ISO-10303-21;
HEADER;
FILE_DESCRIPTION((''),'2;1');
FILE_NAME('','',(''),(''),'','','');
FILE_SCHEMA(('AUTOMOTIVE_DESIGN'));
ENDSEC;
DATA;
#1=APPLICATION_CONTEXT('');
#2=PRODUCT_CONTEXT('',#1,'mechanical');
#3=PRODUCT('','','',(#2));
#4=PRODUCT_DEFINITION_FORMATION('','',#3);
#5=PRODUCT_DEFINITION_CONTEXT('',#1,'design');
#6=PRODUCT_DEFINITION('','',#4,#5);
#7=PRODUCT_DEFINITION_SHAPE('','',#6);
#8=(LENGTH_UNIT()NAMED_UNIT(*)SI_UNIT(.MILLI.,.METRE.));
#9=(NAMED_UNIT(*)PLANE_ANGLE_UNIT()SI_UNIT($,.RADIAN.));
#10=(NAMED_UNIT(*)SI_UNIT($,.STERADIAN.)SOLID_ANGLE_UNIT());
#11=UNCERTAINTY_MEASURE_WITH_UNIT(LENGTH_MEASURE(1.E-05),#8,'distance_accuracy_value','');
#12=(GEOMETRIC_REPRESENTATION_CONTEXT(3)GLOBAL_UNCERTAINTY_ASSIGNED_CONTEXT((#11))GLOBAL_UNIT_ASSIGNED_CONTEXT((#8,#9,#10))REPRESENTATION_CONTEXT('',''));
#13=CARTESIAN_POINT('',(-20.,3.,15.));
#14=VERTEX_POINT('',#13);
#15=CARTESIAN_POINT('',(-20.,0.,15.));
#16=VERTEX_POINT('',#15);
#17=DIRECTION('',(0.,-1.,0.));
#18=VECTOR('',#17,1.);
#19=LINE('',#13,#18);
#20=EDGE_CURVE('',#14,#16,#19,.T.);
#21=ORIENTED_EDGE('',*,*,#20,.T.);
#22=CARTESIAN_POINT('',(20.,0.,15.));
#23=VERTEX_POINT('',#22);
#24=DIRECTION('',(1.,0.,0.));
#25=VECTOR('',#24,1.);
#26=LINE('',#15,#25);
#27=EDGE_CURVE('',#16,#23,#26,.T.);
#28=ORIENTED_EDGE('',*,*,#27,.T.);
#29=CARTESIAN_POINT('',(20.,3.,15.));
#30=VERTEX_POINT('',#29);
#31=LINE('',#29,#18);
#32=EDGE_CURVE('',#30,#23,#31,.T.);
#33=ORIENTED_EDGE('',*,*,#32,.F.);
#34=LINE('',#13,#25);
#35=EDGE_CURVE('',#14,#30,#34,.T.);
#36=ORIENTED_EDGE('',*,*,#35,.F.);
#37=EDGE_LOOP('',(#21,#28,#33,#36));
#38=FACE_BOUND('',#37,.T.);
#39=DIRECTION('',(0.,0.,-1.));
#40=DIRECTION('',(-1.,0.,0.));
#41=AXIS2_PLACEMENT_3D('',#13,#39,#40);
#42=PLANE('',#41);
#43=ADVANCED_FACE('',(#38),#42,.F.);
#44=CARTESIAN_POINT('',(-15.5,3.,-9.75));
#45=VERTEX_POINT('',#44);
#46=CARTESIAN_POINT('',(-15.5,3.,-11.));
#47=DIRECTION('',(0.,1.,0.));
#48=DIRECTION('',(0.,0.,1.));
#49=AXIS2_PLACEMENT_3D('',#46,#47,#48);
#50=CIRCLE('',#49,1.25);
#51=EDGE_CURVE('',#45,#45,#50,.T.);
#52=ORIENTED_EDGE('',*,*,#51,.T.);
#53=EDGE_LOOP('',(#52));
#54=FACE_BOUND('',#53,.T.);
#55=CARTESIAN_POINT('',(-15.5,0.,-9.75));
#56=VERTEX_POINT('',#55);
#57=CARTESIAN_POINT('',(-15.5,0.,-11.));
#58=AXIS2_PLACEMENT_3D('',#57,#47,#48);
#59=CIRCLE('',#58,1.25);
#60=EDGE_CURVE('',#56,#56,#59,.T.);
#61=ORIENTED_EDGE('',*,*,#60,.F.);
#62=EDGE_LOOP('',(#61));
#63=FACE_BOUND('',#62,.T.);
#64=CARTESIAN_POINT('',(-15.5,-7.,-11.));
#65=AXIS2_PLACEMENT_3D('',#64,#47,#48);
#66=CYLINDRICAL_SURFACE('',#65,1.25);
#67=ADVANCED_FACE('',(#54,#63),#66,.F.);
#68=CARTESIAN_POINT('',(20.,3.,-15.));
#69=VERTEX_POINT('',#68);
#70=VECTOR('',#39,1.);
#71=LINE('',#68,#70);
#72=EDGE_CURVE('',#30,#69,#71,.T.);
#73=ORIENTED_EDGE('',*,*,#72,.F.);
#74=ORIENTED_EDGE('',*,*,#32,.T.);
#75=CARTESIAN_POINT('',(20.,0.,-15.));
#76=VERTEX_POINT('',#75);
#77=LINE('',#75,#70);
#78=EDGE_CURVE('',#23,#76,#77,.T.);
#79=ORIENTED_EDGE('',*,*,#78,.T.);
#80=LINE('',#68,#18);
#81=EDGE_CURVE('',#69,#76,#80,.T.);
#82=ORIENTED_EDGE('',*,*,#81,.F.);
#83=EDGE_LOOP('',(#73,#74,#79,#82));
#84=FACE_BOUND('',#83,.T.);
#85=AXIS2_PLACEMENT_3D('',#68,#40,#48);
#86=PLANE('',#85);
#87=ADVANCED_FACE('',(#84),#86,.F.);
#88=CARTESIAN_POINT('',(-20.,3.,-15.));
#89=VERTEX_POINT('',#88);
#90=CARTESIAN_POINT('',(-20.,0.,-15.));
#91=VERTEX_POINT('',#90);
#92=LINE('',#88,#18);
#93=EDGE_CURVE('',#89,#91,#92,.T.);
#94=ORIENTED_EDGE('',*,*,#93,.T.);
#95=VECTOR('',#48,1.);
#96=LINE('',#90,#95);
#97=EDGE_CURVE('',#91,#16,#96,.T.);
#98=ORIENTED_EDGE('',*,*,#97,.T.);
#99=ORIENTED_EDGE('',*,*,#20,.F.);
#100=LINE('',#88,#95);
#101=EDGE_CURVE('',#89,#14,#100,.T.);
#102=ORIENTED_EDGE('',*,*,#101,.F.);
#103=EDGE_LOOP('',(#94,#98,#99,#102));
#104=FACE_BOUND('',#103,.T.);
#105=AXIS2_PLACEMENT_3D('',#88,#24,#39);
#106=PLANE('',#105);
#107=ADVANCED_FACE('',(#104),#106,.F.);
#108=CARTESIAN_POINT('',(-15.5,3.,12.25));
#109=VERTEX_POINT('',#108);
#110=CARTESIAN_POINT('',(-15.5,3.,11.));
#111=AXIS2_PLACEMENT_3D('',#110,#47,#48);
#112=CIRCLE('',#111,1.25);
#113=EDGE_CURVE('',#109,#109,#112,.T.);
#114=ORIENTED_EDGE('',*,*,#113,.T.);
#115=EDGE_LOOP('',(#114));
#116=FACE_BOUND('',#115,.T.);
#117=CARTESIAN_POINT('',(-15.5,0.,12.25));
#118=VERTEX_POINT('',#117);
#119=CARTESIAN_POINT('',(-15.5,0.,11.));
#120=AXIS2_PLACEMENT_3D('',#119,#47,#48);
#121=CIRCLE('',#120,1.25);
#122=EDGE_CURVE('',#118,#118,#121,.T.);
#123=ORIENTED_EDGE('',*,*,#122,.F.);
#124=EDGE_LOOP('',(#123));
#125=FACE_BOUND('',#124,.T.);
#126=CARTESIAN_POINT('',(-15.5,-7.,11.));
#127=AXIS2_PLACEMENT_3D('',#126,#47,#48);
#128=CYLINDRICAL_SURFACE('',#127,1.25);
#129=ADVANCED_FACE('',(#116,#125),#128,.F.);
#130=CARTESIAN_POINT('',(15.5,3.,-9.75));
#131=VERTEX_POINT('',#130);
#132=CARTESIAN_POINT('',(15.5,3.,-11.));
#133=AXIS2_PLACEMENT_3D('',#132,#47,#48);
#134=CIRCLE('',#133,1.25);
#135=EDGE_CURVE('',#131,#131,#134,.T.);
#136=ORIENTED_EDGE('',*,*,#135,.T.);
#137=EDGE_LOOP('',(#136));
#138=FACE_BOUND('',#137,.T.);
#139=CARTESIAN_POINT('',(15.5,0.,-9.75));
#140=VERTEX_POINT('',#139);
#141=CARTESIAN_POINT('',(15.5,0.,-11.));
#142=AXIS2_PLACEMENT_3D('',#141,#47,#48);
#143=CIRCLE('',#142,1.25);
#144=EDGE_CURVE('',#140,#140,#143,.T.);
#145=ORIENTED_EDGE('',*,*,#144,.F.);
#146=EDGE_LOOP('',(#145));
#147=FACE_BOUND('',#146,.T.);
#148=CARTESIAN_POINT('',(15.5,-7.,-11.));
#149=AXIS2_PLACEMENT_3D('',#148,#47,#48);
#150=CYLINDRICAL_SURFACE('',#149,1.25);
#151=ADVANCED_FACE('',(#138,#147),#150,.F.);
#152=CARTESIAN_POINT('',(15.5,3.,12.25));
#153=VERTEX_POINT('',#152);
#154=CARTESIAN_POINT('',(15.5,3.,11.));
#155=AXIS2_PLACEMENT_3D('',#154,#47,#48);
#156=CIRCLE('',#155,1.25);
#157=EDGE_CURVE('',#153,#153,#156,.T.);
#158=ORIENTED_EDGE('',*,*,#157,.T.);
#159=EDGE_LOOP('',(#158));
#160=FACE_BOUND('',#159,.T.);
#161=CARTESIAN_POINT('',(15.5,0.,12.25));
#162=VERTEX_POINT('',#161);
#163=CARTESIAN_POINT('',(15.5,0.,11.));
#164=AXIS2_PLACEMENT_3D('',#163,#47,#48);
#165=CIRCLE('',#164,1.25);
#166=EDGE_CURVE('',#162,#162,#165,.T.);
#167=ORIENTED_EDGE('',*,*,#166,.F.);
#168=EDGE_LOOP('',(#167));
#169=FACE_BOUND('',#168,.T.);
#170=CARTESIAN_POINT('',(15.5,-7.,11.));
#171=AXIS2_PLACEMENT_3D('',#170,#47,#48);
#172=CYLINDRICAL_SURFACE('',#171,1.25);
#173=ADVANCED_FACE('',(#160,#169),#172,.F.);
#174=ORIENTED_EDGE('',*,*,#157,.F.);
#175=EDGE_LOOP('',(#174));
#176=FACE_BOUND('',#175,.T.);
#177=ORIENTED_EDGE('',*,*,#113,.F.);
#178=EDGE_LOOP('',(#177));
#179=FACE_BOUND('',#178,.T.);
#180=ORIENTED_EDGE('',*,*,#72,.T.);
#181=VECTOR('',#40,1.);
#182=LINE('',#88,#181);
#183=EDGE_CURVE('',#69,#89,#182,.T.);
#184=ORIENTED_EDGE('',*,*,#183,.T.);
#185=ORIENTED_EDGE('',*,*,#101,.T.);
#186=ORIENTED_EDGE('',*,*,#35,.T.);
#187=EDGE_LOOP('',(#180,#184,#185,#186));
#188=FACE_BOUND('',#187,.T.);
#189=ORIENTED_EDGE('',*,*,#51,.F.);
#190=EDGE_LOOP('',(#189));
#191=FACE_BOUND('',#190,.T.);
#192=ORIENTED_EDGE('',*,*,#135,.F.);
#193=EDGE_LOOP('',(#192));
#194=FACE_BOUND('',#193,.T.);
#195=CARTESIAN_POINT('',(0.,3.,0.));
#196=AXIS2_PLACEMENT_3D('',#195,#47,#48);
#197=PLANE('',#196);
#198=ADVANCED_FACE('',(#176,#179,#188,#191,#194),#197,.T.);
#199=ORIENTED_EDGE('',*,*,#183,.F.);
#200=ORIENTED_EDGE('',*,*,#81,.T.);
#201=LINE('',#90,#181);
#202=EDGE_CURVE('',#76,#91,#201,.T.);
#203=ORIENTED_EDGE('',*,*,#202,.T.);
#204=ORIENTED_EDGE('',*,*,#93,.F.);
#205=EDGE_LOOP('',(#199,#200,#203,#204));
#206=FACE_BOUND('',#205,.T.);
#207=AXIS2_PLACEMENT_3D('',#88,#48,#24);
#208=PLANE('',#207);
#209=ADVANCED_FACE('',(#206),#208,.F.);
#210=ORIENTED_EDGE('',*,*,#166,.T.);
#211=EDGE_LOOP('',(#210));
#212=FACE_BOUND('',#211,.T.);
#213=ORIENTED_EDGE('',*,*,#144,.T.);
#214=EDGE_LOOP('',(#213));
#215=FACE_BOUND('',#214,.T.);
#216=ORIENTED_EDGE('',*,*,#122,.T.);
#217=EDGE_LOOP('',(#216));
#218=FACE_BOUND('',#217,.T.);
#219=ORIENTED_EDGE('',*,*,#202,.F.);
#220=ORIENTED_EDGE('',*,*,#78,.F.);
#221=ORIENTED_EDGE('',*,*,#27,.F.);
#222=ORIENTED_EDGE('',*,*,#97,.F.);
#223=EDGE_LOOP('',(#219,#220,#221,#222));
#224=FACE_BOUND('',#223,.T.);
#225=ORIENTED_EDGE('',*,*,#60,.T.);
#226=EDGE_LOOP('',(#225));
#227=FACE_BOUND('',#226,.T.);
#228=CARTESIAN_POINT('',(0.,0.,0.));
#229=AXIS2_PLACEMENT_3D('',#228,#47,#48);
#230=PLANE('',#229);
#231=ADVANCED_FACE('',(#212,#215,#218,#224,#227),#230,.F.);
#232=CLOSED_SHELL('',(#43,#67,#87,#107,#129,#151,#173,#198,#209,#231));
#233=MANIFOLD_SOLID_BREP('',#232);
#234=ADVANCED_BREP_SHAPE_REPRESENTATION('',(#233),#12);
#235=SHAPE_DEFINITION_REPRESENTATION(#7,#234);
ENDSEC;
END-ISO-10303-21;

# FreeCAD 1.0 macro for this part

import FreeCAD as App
import Part
import Sketcher


def add_polygon(sketch, points):
    """Adds a closed chain of lines whose ends are joined by coincident constraints."""
    first, n = sketch.GeometryCount, len(points)
    for a, b in zip(points, points[1:] + points[:1]):
        sketch.addGeometry(Part.LineSegment(App.Vector(*a, 0), App.Vector(*b, 0)), False)
    for i in range(n):
        sketch.addConstraint(Sketcher.Constraint("Coincident", first + i, 2, first + (i + 1) % n, 1))

doc = App.newDocument("Part")
body = doc.addObject("PartDesign::Body", "Body")

# Sketch on XZ plane
sketch1 = body.newObject("Sketcher::SketchObject", "Sketch")
sketch1.AttachmentSupport = (doc.getObject("XZ_Plane"), [""])
sketch1.MapMode = "FlatFace"
add_polygon(sketch1, [(-20, -15), (-20, 15), (20, 15), (20, -15)])  # lines 0-3
sketch1.addConstraint([
    Sketcher.Constraint("Vertical", 0),
    Sketcher.Constraint("Horizontal", 1),
    Sketcher.Constraint("Vertical", 2),
    Sketcher.Constraint("Horizontal", 3),
    Sketcher.Constraint("Symmetric", 0, 2, 2, 2, -1, 1),
    Sketcher.Constraint("DistanceX", 1, 1, 1, 2, 40.0),
    Sketcher.Constraint("DistanceY", 0, 1, 0, 2, 30.0),
])
pad1 = body.newObject("PartDesign::Pad", "Pad")
pad1.Profile = sketch1
pad1.Length = 3
pad1.Reversed = True

# Sketch on XZ plane
sketch2 = body.newObject("Sketcher::SketchObject", "Sketch001")
sketch2.AttachmentSupport = (doc.getObject("XZ_Plane"), [""])
sketch2.MapMode = "FlatFace"
sketch2.AttachmentOffset = App.Placement(App.Vector(0, 0, -3), App.Rotation())
sketch2.addGeometry([
    Part.Circle(App.Vector(15.5, -11, 0), App.Vector(0, 0, 1), 1.2),
    Part.Circle(App.Vector(-15.5, -11, 0), App.Vector(0, 0, 1), 1.2),
    Part.Circle(App.Vector(-15.5, 11, 0), App.Vector(0, 0, 1), 1.2),
    Part.Circle(App.Vector(15.5, 11, 0), App.Vector(0, 0, 1), 1.2),
], False)
sketch2.addConstraint([
    Sketcher.Constraint("Equal", 0, 1),
    Sketcher.Constraint("Equal", 1, 2),
    Sketcher.Constraint("Equal", 2, 3),
    Sketcher.Constraint("Symmetric", 0, 3, 2, 3, -1, 1),
    Sketcher.Constraint("Symmetric", 1, 3, 3, 3, -1, 1),
    Sketcher.Constraint("Symmetric", 0, 3, 1, 3, -2),
    Sketcher.Constraint("Diameter", 0, 2.5),
    Sketcher.Constraint("DistanceY", 0, 3, -1, 1, 11.0),
    Sketcher.Constraint("DistanceX", 1, 3, 0, 3, 31.0),
])
pocket1 = body.newObject("PartDesign::Pocket", "Pocket")
pocket1.Profile = sketch2
pocket1.Length = 10
pocket1.Reversed = True

doc.recompute()
